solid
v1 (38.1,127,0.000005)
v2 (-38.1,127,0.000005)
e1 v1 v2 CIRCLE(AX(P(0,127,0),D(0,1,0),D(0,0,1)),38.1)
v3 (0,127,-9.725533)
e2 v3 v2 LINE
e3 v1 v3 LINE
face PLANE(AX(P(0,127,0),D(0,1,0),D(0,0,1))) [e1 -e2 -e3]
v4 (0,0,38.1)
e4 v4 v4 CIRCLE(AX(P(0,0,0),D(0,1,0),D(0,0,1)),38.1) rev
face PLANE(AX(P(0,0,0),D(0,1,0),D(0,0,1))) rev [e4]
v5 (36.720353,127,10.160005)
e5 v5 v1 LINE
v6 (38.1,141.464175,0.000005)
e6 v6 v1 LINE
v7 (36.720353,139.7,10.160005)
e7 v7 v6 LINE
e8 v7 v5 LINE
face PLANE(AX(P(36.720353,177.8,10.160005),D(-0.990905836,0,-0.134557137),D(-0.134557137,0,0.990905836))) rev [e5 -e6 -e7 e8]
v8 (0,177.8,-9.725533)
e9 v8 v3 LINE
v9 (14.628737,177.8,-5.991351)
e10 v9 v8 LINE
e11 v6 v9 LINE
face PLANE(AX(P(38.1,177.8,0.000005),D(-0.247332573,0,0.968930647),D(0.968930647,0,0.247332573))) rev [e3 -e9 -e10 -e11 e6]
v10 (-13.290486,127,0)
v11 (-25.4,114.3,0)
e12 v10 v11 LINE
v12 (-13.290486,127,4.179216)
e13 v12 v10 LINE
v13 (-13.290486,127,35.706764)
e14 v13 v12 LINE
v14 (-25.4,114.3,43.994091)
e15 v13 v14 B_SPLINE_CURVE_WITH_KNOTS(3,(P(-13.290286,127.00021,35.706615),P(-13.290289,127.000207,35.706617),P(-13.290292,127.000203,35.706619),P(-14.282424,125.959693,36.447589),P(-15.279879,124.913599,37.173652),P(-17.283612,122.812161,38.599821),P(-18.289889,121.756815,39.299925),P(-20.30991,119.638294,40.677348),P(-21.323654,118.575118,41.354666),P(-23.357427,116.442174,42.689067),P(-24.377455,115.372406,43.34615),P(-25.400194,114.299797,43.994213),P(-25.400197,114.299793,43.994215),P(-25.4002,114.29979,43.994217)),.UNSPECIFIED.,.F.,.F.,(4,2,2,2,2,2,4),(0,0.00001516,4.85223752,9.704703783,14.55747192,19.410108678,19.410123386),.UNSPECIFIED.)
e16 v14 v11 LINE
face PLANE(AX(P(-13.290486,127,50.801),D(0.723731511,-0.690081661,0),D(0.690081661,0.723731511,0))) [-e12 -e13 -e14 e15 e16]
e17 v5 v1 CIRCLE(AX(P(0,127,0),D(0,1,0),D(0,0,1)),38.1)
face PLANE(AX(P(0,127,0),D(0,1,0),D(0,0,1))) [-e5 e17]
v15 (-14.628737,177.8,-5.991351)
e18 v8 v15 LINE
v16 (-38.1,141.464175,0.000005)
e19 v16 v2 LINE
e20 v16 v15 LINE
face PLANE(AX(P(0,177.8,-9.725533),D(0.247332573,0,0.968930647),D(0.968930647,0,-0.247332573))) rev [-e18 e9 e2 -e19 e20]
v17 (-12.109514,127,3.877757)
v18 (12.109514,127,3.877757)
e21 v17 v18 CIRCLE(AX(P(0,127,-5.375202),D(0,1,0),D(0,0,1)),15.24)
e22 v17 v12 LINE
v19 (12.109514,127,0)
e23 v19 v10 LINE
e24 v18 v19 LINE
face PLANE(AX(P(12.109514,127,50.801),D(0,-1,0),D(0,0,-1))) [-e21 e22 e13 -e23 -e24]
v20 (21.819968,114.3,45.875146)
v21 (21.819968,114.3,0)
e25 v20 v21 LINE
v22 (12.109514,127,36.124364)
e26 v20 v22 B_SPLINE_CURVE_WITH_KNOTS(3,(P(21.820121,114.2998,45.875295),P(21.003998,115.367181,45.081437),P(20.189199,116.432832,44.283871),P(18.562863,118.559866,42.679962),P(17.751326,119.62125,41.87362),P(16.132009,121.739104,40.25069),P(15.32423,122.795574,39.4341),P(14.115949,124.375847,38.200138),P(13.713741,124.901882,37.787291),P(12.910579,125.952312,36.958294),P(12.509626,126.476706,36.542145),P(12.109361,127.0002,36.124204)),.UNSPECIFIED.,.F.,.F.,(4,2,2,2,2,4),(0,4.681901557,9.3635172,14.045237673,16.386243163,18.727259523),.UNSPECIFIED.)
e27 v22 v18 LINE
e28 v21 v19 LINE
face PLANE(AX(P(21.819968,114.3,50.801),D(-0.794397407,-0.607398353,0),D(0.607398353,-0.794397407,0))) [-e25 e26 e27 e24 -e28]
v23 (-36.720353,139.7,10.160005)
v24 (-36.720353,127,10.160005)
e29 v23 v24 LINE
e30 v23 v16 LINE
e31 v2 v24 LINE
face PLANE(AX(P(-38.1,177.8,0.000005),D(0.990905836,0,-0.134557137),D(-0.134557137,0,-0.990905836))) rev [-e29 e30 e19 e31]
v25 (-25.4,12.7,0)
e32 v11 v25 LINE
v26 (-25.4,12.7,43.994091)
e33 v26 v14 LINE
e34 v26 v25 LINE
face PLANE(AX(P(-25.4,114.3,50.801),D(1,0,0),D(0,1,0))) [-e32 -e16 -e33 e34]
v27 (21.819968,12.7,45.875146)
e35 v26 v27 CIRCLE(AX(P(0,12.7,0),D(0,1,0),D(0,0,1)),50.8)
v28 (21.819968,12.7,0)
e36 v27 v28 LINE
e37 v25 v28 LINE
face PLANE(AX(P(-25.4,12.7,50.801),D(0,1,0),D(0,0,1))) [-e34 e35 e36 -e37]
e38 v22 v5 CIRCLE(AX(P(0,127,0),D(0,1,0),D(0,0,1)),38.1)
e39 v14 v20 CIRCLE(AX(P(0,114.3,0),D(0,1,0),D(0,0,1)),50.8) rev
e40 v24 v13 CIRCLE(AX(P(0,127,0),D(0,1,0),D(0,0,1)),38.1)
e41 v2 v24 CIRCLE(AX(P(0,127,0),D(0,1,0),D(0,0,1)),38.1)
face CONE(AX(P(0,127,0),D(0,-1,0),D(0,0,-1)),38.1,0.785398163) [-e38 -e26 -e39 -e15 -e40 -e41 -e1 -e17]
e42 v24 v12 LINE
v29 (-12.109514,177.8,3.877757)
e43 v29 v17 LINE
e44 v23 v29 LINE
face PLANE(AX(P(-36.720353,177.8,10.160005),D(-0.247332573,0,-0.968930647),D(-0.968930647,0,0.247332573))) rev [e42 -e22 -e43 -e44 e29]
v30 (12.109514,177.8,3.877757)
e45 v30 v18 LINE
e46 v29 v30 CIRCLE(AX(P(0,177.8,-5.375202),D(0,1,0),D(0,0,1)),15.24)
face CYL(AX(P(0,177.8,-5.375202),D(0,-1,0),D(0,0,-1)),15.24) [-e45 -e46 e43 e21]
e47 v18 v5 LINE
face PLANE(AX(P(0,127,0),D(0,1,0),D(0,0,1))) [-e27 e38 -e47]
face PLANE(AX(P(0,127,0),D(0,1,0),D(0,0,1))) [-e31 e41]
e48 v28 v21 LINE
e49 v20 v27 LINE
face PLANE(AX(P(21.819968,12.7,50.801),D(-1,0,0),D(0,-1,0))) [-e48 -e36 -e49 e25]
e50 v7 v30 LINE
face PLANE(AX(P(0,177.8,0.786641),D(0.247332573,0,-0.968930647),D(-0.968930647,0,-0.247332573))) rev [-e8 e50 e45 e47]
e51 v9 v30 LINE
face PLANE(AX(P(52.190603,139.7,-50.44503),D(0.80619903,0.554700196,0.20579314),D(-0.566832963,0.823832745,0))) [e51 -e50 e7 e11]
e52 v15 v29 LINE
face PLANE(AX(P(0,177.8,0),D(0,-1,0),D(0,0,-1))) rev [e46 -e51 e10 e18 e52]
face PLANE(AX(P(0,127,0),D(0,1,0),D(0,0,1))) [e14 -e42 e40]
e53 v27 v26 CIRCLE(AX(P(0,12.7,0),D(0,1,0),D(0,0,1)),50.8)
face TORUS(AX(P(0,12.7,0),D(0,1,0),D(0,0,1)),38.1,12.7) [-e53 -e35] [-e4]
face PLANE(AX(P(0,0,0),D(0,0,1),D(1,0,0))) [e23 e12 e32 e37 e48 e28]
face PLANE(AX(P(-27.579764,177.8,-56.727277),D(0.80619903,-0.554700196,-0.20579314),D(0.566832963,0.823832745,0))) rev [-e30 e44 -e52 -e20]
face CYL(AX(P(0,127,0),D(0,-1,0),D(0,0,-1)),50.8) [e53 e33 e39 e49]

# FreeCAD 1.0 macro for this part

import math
import FreeCAD as App
import Part
import Sketcher
from FreeCAD import Vector
Q = App.Units.Quantity


def edges_at(feature, points):
    """Names of the edges that pass closest to the given points."""
    edges = feature.Shape.Edges
    near = lambda p: min(range(len(edges)), key=lambda i: edges[i].distToShape(Part.Vertex(*p))[0])
    return sorted({f"Edge{near(p) + 1}" for p in points})


def add_polygon(sketch, points):
    """Adds a closed chain of lines whose ends are joined by coincident constraints."""
    first, n = sketch.GeometryCount, len(points)
    for a, b in zip(points, points[1:] + points[:1]):
        sketch.addGeometry(Part.LineSegment(App.Vector(*a, 0), App.Vector(*b, 0)), False)
    for i in range(n):
        sketch.addConstraint(Sketcher.Constraint("Coincident", first + i, 2, first + (i + 1) % n, 1))

doc = App.newDocument("Part")
body = doc.addObject("PartDesign::Body", "Body")

# Sketch on XZ plane
sketch1 = body.newObject("Sketcher::SketchObject", "Sketch")
sketch1.AttachmentSupport = (doc.getObject("XZ_Plane"), [""])
sketch1.MapMode = "FlatFace"
sketch1.addGeometry(Part.Circle(Vector(0, 0, 0), Vector(0, 0, 1), 51), False)
sketch1.addConstraint([
    Sketcher.Constraint("Coincident", 0, 3, -1, 1),
    Sketcher.Constraint("Diameter", 0, Q("4 in")),
])
pad1 = body.newObject("PartDesign::Pad", "Pad")
pad1.Profile = sketch1
pad1.Length = Q("5 in")
pad1.Reversed = True
doc.recompute()

fillet = body.newObject("PartDesign::Fillet", "Fillet")
fillet.Base = (pad1, edges_at(pad1, [(0, 0, -50.8)]))
fillet.Radius = Q("0.5 in")
doc.recompute()

chamfer = body.newObject("PartDesign::Chamfer", "Chamfer")
chamfer.Base = (fillet, edges_at(fillet, [(0, 127, -50.8)]))
chamfer.Size = Q("0.5 in")

# Sketch on XZ plane
sketch2 = body.newObject("Sketcher::SketchObject", "Sketch001")
sketch2.AttachmentSupport = (doc.getObject("XZ_Plane"), [""])
sketch2.MapMode = "FlatFace"
sketch2.AttachmentOffset = App.Placement(Vector(0, 0, -5 * 25.4), App.Rotation())
add_polygon(sketch2, [(0, -10), (-38, 0), (-37, 10), (0, 1), (37, 10), (38, 0)])  # lines 0-5
sketch2.addConstraint([
    Sketcher.Constraint("Symmetric", 0, 2, 4, 2, -1, 1),
    Sketcher.Constraint("Symmetric", 1, 2, 3, 2, -2),
    Sketcher.Constraint("PointOnObject", 2, 2, -2),
    Sketcher.Constraint("PointOnObject", 5, 2, -2),
    Sketcher.Constraint("Parallel", 0, 2),
    Sketcher.Constraint("Parallel", 3, 5),
    Sketcher.Constraint("DistanceX", 0, 2, 4, 2, Q("3 in")),
    Sketcher.Constraint("DistanceY", -1, 1, 1, 2, Q("0.4000002 in")),
    Sketcher.Constraint("Distance", 0, 39.3217),
    Sketcher.Constraint("DistanceY", -1, 1, 2, 2, 0.786641),
])
pad2 = body.newObject("PartDesign::Pad", "Pad001")
pad2.Profile = sketch2
pad2.Length = Q("2 in")
pad2.Reversed = True

# Sketch on an angled plane
sketch3 = body.newObject("Sketcher::SketchObject", "Sketch002")
sketch3.Placement = App.Placement(Vector(0.188517, 0, 0.738519), App.Rotation(Vector(0.968930647, 0, -0.247332573), Vector(0, 1, 0), Vector(0.247332573, 0, 0.968930647), "ZXY"))
add_polygon(sketch3, [(-38, 178), (-38, 140), (-13, 178)])  # lines 0-2
sketch3.addConstraint([
    Sketcher.Constraint("Vertical", 0),
    Sketcher.Constraint("Horizontal", 2),
    Sketcher.Constraint("DistanceX", 2, 2, 2, 1, Q("1 in")),
    Sketcher.Constraint("DistanceY", 0, 2, 0, 1, Q("1.5 in")),
    Sketcher.Constraint("DistanceY", -1, 1, 1, 2, Q("7 in")),
    Sketcher.Constraint("DistanceX", 0, 2, -1, 1, Q("1.4996998 in")),
])
pocket1 = body.newObject("PartDesign::Pocket", "Pocket")
pocket1.Profile = sketch3
pocket1.Type = "ThroughAll"

# Sketch on an angled plane
sketch4 = body.newObject("Sketcher::SketchObject", "Sketch003")
sketch4.Placement = App.Placement(Vector(-0.188517, 0, 0.738519), App.Rotation(Vector(0.968930647, 0, 0.247332573), Vector(0, 1, 0), Vector(-0.247332573, 0, 0.968930647), "ZXY"))
add_polygon(sketch4, [(38, 178), (13, 178), (38, 140)])  # lines 0-2
sketch4.addConstraint([
    Sketcher.Constraint("Horizontal", 0),
    Sketcher.Constraint("Vertical", 2),
    Sketcher.Constraint("DistanceX", 0, 2, 0, 1, Q("1 in")),
    Sketcher.Constraint("DistanceY", 2, 1, 2, 2, Q("1.5 in")),
    Sketcher.Constraint("DistanceY", -1, 1, 0, 2, Q("7 in")),
    Sketcher.Constraint("DistanceX", -1, 1, 0, 2, Q("0.4996998 in")),
])
pocket2 = body.newObject("PartDesign::Pocket", "Pocket001")
pocket2.Profile = sketch4
pocket2.Type = "ThroughAll"

# Sketch on XZ plane
sketch5 = body.newObject("Sketcher::SketchObject", "Sketch004")
sketch5.AttachmentSupport = (doc.getObject("XZ_Plane"), [""])
sketch5.MapMode = "FlatFace"
sketch5.AttachmentOffset = App.Placement(Vector(0, 0, -5 * 25.4), App.Rotation())
sketch5.addGeometry([
    Part.LineSegment(Vector(0, 1, 0), Vector(-12, 4, 0)),
    Part.ArcOfCircle(Part.Circle(Vector(0, -5, 0), Vector(0, 0, 1), 15), math.radians(37), math.radians(143)),
    Part.LineSegment(Vector(12, 4, 0), Vector(0, 1, 0)),
], False)
sketch5.addConstraint([
    Sketcher.Constraint("Coincident", 0, 2, 1, 2),
    Sketcher.Constraint("Coincident", 1, 1, 2, 1),
    Sketcher.Constraint("Coincident", 2, 2, 0, 1),
    Sketcher.Constraint("Symmetric", 0, 2, 1, 1, -2),
    Sketcher.Constraint("PointOnObject", 2, 2, -2),
    Sketcher.Constraint("Radius", 1, Q("0.6 in")),
    Sketcher.Constraint("DistanceY", -1, 1, 2, 2, 0.786641),
    Sketcher.Constraint("DistanceY", 1, 3, 0, 2, 9.25296),
    Sketcher.Constraint("Distance", 0, 12.497813),
])
pad3 = body.newObject("PartDesign::Pad", "Pad002")
pad3.Profile = sketch5
pad3.Length = Q("2 in")
pad3.Reversed = True

# Sketch on XY plane
sketch6 = body.newObject("Sketcher::SketchObject", "Sketch005")
sketch6.AttachmentSupport = (doc.getObject("XY_Plane"), [""])
sketch6.MapMode = "FlatFace"
add_polygon(sketch6, [(-13, 127), (-25, 114), (-25, 13), (22, 13), (22, 114), (12, 127)])  # lines 0-5
sketch6.addConstraint([
    Sketcher.Constraint("Vertical", 1),
    Sketcher.Constraint("Horizontal", 2),
    Sketcher.Constraint("Vertical", 3),
    Sketcher.Constraint("Horizontal", 5),
    Sketcher.Constraint("Horizontal", 0, 2, 3, 2),
    Sketcher.Constraint("DistanceX", 5, 2, 5, 1, Q("1 in")),
    Sketcher.Constraint("DistanceY", 1, 2, 1, 1, Q("4 in")),
    Sketcher.Constraint("DistanceX", 0, 2, -1, 1, Q("1 in")),
    Sketcher.Constraint("DistanceY", -1, 1, 4, 2, Q("5 in")),
    Sketcher.Constraint("DistanceY", -1, 1, 0, 2, Q("4.5 in")),
    Sketcher.Constraint("Distance", 4, 15.986961),
    Sketcher.Constraint("DistanceX", 2, 1, 2, 2, 47.219968),
])
pocket3 = body.newObject("PartDesign::Pocket", "Pocket002")
pocket3.Profile = sketch6
pocket3.Type = "UpToFirst"
pocket3.Reversed = True

doc.recompute()
